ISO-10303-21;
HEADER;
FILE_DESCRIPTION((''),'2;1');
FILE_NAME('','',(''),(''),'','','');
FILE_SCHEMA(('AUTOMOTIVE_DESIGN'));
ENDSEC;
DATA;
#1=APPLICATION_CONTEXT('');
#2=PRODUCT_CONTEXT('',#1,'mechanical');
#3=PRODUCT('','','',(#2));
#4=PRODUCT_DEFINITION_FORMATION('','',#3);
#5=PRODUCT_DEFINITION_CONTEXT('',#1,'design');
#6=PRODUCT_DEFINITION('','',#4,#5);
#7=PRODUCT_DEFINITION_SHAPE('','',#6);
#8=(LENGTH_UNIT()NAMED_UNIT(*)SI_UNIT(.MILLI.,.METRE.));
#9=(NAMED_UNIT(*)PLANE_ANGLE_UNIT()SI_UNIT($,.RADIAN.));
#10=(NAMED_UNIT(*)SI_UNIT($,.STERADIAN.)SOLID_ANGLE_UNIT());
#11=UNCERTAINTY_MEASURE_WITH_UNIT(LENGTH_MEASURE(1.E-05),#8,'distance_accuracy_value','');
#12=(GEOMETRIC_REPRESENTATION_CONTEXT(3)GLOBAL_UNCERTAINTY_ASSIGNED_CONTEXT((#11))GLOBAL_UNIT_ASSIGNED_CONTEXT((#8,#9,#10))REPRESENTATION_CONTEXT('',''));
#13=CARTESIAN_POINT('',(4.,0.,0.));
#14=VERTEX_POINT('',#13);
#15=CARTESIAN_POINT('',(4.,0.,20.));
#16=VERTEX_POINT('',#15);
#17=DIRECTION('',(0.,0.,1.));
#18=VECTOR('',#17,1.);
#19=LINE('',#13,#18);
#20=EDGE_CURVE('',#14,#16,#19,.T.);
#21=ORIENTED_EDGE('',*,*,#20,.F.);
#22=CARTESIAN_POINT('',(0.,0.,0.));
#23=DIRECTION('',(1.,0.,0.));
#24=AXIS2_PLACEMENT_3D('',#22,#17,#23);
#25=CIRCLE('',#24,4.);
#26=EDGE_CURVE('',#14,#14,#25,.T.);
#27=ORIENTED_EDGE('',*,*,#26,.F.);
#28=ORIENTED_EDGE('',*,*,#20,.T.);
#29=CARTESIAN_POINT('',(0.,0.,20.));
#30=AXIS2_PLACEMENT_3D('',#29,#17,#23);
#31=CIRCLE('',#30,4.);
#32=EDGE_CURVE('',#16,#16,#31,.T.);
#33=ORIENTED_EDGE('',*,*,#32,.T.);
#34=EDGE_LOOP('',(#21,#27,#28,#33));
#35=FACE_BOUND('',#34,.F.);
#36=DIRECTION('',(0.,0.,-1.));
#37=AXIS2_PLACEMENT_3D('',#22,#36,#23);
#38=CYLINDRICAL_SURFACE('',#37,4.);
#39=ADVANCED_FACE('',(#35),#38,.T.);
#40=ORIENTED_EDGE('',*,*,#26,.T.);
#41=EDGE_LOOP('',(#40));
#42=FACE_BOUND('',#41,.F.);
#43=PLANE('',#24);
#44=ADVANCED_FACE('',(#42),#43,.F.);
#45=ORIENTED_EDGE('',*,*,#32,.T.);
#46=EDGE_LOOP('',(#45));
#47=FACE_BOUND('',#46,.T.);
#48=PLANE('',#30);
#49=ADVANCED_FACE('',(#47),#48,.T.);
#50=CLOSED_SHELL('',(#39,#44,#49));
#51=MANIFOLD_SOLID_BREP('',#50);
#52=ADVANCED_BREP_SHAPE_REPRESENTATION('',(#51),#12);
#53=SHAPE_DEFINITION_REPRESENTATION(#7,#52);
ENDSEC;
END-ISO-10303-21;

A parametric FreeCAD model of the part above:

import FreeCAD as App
import Part
import Sketcher
Q = App.Units.Quantity

doc = App.newDocument("Part")
params = doc.addObject("Spreadsheet::Sheet", "Params")
for row, (alias, value) in enumerate([
    ("sketch1_diameter", "8 mm"),
    ("pad1_length", "20 mm"),
], start=1):
    params.set(f"A{row}", alias)
    params.set(f"B{row}", "=" + value)
    params.setAlias(f"B{row}", alias)

body = doc.addObject("PartDesign::Body", "Body")

sketch1 = doc.addObject("Sketcher::SketchObject", "Sketch")
body.addObject(sketch1)
sketch1.AttachmentSupport = (doc.XY_Plane, [""])
sketch1.MapMode = "FlatFace"
sketch1.addGeometry(Part.Circle(App.Vector(0, 0, 0), App.Vector(0, 0, 1), 4), False)
sketch1.addConstraint([
    Sketcher.Constraint("Coincident", 0, 3, -1, 1),
    Sketcher.Constraint("Diameter", 0, Q("8 mm")),
])
sketch1.setExpression("Constraints[1]", "Params.sketch1_diameter")
pad1 = doc.addObject("PartDesign::Pad", "Pad")
body.addObject(pad1)
pad1.Profile = sketch1
pad1.setExpression("Length", "Params.pad1_length")

doc.recompute()
